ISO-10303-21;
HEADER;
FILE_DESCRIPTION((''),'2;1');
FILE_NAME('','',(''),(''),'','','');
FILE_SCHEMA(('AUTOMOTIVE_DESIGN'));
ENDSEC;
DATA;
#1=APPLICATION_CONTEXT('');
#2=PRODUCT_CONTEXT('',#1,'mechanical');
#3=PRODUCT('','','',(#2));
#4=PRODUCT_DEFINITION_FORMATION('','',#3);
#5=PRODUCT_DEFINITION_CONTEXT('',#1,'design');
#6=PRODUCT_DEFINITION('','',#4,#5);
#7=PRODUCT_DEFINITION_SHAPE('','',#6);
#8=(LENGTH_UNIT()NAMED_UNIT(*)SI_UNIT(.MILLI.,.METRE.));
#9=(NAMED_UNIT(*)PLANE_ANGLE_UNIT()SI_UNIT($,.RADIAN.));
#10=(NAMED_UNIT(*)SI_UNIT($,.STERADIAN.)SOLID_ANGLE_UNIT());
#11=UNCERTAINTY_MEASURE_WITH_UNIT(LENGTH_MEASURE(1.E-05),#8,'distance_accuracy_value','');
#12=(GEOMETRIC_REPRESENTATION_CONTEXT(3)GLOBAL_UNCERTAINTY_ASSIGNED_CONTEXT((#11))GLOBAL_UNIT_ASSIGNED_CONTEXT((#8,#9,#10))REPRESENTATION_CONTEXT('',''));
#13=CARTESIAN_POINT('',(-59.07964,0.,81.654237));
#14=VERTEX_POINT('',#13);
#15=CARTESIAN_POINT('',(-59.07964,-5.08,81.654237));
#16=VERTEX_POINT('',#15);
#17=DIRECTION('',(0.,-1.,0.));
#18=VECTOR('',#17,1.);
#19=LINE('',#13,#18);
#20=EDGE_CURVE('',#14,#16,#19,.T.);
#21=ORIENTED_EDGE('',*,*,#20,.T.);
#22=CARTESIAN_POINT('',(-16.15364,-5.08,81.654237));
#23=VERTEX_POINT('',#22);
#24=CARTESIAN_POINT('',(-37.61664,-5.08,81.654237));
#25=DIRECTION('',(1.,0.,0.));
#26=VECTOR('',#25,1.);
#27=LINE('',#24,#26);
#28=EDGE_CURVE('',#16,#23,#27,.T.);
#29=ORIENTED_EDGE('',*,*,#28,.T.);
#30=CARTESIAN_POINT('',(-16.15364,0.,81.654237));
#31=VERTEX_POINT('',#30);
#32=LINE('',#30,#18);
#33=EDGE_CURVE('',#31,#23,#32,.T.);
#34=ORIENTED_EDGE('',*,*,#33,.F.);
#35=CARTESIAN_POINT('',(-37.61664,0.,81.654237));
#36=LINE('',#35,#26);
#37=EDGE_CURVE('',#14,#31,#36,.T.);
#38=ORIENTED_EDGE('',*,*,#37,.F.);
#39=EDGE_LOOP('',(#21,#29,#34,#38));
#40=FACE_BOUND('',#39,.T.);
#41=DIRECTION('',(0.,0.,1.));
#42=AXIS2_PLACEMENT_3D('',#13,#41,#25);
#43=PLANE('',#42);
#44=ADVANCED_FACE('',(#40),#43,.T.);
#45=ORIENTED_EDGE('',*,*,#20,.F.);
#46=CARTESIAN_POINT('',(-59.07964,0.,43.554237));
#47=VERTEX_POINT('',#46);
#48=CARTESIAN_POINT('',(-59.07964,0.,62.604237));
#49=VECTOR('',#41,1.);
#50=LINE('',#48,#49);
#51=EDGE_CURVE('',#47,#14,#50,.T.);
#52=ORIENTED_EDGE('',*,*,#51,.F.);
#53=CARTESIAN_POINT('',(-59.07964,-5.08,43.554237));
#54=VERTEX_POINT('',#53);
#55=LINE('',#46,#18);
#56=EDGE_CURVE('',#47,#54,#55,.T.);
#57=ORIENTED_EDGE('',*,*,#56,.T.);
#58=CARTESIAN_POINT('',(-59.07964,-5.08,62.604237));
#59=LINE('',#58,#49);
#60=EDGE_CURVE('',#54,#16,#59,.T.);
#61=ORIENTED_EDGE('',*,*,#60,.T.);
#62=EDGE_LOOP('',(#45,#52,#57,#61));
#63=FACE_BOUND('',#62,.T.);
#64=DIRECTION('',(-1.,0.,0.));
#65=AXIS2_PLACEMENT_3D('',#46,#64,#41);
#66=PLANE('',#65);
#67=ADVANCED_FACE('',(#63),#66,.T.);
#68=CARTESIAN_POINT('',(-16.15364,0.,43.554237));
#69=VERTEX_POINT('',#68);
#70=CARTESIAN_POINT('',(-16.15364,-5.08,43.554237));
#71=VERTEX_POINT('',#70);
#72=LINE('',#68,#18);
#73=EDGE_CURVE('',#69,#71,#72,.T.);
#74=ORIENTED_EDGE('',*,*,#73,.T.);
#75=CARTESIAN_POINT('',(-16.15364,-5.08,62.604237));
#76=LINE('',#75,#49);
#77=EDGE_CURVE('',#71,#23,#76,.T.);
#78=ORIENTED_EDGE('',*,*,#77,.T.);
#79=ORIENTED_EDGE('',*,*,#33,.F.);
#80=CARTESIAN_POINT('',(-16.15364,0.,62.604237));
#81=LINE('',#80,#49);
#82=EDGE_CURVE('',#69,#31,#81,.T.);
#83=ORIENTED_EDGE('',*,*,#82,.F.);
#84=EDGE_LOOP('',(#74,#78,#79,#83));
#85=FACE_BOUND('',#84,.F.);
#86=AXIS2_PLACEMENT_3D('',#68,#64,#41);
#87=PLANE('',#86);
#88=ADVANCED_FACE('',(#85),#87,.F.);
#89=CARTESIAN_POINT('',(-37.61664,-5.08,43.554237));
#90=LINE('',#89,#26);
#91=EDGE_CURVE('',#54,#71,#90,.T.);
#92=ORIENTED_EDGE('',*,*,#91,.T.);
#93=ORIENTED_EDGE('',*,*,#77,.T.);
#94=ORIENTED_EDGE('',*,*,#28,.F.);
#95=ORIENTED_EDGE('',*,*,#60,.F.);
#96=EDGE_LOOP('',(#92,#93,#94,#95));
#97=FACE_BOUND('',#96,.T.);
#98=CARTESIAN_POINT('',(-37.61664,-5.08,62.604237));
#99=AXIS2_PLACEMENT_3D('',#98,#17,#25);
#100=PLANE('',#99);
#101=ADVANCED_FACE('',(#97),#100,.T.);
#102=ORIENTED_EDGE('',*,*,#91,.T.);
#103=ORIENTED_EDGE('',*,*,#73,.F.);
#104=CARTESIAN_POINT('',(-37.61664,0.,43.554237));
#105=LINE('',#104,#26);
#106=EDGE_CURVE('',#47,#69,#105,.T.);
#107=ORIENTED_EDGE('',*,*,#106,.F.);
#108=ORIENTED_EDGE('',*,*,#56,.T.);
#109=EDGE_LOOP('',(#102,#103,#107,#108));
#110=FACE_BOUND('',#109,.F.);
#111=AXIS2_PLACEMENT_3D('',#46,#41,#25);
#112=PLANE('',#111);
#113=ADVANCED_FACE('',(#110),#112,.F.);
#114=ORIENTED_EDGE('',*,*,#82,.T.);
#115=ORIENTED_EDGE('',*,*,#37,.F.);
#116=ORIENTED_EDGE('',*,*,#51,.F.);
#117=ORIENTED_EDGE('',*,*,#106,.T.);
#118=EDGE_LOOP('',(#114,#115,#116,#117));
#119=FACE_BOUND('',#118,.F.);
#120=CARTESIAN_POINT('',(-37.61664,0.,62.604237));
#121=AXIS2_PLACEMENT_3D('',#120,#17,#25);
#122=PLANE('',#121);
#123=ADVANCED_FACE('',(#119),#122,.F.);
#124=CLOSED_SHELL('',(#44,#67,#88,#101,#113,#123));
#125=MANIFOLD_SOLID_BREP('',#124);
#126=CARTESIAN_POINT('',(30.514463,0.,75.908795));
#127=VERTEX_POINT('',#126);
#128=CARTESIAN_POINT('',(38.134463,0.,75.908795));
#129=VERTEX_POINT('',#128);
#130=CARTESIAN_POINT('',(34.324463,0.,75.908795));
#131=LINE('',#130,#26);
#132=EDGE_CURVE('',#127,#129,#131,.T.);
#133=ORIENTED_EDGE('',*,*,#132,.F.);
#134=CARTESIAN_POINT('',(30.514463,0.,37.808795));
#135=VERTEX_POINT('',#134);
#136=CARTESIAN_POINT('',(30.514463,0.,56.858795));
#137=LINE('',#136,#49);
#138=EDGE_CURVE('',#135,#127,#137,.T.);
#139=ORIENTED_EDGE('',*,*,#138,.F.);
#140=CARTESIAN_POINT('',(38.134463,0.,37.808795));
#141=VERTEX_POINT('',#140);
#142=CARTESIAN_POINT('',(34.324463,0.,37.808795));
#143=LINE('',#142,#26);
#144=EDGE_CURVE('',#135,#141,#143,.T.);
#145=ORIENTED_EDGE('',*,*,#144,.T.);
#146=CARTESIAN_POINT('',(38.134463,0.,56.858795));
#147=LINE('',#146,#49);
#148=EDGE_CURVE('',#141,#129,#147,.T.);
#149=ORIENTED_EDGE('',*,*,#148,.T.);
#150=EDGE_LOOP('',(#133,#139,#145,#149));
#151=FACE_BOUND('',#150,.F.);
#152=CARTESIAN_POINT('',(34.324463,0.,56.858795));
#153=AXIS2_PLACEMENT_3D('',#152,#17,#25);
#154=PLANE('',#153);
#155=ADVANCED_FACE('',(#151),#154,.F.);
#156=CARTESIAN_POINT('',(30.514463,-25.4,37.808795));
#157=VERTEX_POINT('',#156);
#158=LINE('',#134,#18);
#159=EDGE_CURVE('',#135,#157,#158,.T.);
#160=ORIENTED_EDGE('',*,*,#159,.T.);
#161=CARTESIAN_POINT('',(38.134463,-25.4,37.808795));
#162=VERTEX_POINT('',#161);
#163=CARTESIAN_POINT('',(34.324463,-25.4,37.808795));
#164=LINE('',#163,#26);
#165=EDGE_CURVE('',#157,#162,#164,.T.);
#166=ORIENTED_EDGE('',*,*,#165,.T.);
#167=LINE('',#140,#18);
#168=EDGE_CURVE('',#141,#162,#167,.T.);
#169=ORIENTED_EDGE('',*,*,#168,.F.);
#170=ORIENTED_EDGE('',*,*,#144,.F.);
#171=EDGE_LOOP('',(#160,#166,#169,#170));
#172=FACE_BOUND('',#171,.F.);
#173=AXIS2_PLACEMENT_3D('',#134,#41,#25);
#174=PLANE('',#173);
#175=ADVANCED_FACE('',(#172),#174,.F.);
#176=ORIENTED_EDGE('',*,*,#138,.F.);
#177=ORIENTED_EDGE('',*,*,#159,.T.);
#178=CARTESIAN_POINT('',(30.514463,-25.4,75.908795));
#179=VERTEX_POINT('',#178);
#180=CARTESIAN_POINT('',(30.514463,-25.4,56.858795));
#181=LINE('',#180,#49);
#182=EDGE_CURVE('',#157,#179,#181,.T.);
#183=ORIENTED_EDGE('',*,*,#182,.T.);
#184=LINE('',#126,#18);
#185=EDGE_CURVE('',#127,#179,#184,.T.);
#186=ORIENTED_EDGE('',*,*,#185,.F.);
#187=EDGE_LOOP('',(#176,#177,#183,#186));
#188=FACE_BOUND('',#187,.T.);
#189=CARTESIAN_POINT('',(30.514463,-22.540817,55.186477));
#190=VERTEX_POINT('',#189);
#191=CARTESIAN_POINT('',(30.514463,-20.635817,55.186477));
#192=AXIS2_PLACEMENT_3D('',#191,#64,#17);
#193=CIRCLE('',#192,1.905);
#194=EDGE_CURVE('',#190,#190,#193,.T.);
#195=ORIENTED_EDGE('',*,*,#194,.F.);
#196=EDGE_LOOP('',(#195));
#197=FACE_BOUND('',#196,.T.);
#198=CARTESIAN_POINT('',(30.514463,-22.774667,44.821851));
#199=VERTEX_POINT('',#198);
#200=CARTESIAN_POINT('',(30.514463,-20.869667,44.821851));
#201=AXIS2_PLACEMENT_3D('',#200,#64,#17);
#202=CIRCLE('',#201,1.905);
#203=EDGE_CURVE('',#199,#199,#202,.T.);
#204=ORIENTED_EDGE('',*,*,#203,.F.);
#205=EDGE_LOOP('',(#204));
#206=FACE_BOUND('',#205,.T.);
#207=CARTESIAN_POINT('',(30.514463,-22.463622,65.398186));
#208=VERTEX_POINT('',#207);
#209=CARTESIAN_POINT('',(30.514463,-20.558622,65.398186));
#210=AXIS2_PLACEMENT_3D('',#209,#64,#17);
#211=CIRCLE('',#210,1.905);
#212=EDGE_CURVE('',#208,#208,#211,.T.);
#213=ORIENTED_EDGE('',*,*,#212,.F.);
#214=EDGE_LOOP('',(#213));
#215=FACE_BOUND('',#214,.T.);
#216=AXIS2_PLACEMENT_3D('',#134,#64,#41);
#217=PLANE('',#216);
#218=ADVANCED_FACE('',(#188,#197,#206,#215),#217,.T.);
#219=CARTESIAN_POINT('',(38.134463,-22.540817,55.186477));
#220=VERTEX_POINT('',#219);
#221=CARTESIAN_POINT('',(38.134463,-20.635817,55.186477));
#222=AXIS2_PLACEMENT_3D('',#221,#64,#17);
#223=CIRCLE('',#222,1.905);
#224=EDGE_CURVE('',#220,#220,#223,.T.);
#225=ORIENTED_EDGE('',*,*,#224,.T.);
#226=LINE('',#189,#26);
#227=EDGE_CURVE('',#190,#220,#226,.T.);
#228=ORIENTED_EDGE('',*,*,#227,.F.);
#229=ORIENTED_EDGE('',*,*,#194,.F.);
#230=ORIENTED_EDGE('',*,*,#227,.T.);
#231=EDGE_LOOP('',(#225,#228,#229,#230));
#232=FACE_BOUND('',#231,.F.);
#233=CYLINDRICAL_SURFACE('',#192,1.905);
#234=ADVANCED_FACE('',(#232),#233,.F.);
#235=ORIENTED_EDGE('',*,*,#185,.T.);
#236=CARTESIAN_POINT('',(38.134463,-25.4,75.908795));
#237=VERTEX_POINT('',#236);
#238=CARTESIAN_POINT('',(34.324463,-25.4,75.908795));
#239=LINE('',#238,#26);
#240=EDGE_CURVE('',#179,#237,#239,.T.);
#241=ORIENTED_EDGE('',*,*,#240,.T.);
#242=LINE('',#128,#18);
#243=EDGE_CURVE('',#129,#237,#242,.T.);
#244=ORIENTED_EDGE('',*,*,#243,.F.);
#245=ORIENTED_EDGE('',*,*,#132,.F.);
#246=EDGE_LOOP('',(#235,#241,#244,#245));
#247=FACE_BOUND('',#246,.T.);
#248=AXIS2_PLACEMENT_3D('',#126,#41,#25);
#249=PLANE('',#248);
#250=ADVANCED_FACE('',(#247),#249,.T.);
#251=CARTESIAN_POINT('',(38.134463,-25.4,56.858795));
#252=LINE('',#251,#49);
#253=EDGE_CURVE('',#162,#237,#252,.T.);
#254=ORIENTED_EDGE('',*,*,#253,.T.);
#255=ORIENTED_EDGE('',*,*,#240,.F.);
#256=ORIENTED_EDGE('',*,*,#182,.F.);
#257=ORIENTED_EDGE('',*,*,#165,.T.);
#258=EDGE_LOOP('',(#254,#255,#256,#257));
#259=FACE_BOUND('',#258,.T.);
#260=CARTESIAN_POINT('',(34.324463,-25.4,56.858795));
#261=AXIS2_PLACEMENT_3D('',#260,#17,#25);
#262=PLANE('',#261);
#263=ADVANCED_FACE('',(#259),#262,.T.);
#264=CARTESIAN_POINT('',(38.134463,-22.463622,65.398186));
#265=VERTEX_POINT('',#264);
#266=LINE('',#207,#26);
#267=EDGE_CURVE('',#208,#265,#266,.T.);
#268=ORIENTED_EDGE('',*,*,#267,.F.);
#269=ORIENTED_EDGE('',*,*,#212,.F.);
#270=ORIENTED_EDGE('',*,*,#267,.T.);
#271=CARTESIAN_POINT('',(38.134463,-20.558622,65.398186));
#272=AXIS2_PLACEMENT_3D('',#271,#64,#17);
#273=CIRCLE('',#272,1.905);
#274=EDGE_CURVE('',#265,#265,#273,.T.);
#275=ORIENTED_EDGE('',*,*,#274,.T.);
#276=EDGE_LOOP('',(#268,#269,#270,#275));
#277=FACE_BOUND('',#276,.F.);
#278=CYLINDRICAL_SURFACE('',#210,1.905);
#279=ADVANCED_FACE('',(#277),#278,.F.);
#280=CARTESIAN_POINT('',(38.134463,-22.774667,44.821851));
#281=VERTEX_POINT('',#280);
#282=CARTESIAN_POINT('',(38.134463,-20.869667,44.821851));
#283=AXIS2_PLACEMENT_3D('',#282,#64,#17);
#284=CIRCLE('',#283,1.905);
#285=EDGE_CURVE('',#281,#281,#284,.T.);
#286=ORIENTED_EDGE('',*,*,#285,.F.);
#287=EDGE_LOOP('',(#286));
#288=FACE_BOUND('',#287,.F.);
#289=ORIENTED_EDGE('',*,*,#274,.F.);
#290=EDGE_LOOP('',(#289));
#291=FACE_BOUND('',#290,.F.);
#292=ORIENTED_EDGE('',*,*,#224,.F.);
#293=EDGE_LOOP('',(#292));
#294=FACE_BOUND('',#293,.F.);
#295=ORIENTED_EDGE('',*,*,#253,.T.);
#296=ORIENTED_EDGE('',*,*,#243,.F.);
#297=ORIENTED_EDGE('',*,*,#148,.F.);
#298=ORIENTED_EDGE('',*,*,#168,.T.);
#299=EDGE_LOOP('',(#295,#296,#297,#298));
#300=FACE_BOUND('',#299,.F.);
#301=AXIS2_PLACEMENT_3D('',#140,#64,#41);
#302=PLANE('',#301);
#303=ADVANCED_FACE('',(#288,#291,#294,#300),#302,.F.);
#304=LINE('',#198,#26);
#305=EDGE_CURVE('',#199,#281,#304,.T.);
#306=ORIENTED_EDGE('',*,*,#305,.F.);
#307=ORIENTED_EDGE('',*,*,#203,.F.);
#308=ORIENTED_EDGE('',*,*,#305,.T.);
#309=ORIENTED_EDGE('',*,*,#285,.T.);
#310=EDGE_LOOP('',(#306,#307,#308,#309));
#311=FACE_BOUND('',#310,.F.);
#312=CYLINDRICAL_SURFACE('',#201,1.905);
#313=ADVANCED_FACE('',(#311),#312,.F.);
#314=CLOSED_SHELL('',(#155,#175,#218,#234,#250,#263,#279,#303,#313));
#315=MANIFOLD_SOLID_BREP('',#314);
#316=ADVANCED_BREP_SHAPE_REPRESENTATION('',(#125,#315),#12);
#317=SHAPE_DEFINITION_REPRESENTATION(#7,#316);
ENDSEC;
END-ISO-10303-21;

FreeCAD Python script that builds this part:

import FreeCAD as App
import Part
import Sketcher

V = App.Vector
Q = App.Units.Quantity

doc = App.newDocument("Part")
body = doc.addObject("PartDesign::Body", "Body")

# Sketch on XZ plane
sketch1 = body.newObject("Sketcher::SketchObject", "Sketch")
sketch1.AttachmentSupport = (doc.getObject("XZ_Plane"), [""])
sketch1.MapMode = "FlatFace"
sketch1.addGeometry(Part.LineSegment(V(-59.07964, 81.654237, 0), V(-59.07964, 43.554237, 0)), False)
sketch1.addGeometry(Part.LineSegment(V(-59.07964, 43.554237, 0), V(-16.15364, 43.554237, 0)), False)
sketch1.addGeometry(Part.LineSegment(V(-16.15364, 43.554237, 0), V(-16.15364, 81.654237, 0)), False)
sketch1.addGeometry(Part.LineSegment(V(-16.15364, 81.654237, 0), V(-59.07964, 81.654237, 0)), False)
sketch1.addConstraint(Sketcher.Constraint("Coincident", 0, 2, 1, 1))
sketch1.addConstraint(Sketcher.Constraint("Coincident", 1, 2, 2, 1))
sketch1.addConstraint(Sketcher.Constraint("Coincident", 2, 2, 3, 1))
sketch1.addConstraint(Sketcher.Constraint("Coincident", 3, 2, 0, 1))
sketch1.addConstraint(Sketcher.Constraint("Vertical", 0))
sketch1.addConstraint(Sketcher.Constraint("Horizontal", 1))
sketch1.addConstraint(Sketcher.Constraint("Vertical", 2))
sketch1.addConstraint(Sketcher.Constraint("Horizontal", 3))
sketch1.addConstraint(Sketcher.Constraint("DistanceY", 0, 2, 0, 1, Q("1.5 in")))
sketch1.addConstraint(Sketcher.Constraint("DistanceX", 1, 1, 1, 2, Q("1.69 in")))
sketch1.addConstraint(Sketcher.Constraint("DistanceX", 0, 2, -1, 1, Q("59.07964 mm")))
sketch1.addConstraint(Sketcher.Constraint("DistanceY", -1, 1, 0, 2, Q("43.554237 mm")))
pad1 = body.newObject("PartDesign::Pad", "Pad")
pad1.Profile = sketch1
pad1.Length = Q("0.2 in")
body2 = doc.addObject("PartDesign::Body", "Body001")

# Sketch on XZ plane
sketch2 = body2.newObject("Sketcher::SketchObject", "Sketch001")
sketch2.AttachmentSupport = (doc.getObject("XZ_Plane001"), [""])
sketch2.MapMode = "FlatFace"
sketch2.addGeometry(Part.LineSegment(V(30.514463, 75.908795, 0), V(30.514463, 37.808795, 0)), False)
sketch2.addGeometry(Part.LineSegment(V(30.514463, 37.808795, 0), V(38.134463, 37.808795, 0)), False)
sketch2.addGeometry(Part.LineSegment(V(38.134463, 37.808795, 0), V(38.134463, 75.908795, 0)), False)
sketch2.addGeometry(Part.LineSegment(V(38.134463, 75.908795, 0), V(30.514463, 75.908795, 0)), False)
sketch2.addConstraint(Sketcher.Constraint("Coincident", 0, 2, 1, 1))
sketch2.addConstraint(Sketcher.Constraint("Coincident", 1, 2, 2, 1))
sketch2.addConstraint(Sketcher.Constraint("Coincident", 2, 2, 3, 1))
sketch2.addConstraint(Sketcher.Constraint("Coincident", 3, 2, 0, 1))
sketch2.addConstraint(Sketcher.Constraint("Vertical", 0))
sketch2.addConstraint(Sketcher.Constraint("Horizontal", 1))
sketch2.addConstraint(Sketcher.Constraint("Vertical", 2))
sketch2.addConstraint(Sketcher.Constraint("Horizontal", 3))
sketch2.addConstraint(Sketcher.Constraint("DistanceX", 1, 1, 1, 2, Q("0.3 in")))
sketch2.addConstraint(Sketcher.Constraint("DistanceY", 0, 2, 0, 1, Q("1.5 in")))
sketch2.addConstraint(Sketcher.Constraint("DistanceX", -1, 1, 0, 2, Q("30.514463 mm")))
sketch2.addConstraint(Sketcher.Constraint("DistanceY", -1, 1, 0, 2, Q("37.808795 mm")))
pad2 = body2.newObject("PartDesign::Pad", "Pad001")
pad2.Profile = sketch2
pad2.Length = Q("1 in")

# Sketch on YZ plane
sketch3 = body2.newObject("Sketcher::SketchObject", "Sketch002")
sketch3.AttachmentSupport = (doc.getObject("YZ_Plane001"), [""])
sketch3.MapMode = "FlatFace"
sketch3.AttachmentOffset = App.Placement(V(0, 0, 30.514463), App.Rotation())
sketch3.addGeometry(Part.Circle(V(-20.558622, 65.398186, 0), V(0, 0, 1), 1.905), False)
sketch3.addGeometry(Part.Circle(V(-20.635817, 55.186477, 0), V(0, 0, 1), 1.905), False)
sketch3.addGeometry(Part.Circle(V(-20.869667, 44.821851, 0), V(0, 0, 1), 1.905), False)
sketch3.addConstraint(Sketcher.Constraint("Equal", 0, 1))
sketch3.addConstraint(Sketcher.Constraint("Equal", 1, 2))
sketch3.addConstraint(Sketcher.Constraint("Diameter", 0, Q("0.15 in")))
sketch3.addConstraint(Sketcher.Constraint("DistanceX", 0, 3, -1, 1, Q("20.558622 mm")))
sketch3.addConstraint(Sketcher.Constraint("DistanceY", -1, 1, 2, 3, Q("44.821851 mm")))
sketch3.addConstraint(Sketcher.Constraint("DistanceY", 1, 3, 0, 3, Q("10.211709 mm")))
sketch3.addConstraint(Sketcher.Constraint("DistanceX", 2, 3, 1, 3, Q("0.23385 mm")))
sketch3.addConstraint(Sketcher.Constraint("DistanceY", -1, 1, 0, 3, Q("65.398186 mm")))
sketch3.addConstraint(Sketcher.Constraint("DistanceX", 1, 3, -1, 1, Q("20.635817 mm")))
pocket1 = body2.newObject("PartDesign::Pocket", "Pocket")
pocket1.Profile = sketch3
pocket1.Length = Q("1 in")
pocket1.Reversed = True

doc.recompute()
